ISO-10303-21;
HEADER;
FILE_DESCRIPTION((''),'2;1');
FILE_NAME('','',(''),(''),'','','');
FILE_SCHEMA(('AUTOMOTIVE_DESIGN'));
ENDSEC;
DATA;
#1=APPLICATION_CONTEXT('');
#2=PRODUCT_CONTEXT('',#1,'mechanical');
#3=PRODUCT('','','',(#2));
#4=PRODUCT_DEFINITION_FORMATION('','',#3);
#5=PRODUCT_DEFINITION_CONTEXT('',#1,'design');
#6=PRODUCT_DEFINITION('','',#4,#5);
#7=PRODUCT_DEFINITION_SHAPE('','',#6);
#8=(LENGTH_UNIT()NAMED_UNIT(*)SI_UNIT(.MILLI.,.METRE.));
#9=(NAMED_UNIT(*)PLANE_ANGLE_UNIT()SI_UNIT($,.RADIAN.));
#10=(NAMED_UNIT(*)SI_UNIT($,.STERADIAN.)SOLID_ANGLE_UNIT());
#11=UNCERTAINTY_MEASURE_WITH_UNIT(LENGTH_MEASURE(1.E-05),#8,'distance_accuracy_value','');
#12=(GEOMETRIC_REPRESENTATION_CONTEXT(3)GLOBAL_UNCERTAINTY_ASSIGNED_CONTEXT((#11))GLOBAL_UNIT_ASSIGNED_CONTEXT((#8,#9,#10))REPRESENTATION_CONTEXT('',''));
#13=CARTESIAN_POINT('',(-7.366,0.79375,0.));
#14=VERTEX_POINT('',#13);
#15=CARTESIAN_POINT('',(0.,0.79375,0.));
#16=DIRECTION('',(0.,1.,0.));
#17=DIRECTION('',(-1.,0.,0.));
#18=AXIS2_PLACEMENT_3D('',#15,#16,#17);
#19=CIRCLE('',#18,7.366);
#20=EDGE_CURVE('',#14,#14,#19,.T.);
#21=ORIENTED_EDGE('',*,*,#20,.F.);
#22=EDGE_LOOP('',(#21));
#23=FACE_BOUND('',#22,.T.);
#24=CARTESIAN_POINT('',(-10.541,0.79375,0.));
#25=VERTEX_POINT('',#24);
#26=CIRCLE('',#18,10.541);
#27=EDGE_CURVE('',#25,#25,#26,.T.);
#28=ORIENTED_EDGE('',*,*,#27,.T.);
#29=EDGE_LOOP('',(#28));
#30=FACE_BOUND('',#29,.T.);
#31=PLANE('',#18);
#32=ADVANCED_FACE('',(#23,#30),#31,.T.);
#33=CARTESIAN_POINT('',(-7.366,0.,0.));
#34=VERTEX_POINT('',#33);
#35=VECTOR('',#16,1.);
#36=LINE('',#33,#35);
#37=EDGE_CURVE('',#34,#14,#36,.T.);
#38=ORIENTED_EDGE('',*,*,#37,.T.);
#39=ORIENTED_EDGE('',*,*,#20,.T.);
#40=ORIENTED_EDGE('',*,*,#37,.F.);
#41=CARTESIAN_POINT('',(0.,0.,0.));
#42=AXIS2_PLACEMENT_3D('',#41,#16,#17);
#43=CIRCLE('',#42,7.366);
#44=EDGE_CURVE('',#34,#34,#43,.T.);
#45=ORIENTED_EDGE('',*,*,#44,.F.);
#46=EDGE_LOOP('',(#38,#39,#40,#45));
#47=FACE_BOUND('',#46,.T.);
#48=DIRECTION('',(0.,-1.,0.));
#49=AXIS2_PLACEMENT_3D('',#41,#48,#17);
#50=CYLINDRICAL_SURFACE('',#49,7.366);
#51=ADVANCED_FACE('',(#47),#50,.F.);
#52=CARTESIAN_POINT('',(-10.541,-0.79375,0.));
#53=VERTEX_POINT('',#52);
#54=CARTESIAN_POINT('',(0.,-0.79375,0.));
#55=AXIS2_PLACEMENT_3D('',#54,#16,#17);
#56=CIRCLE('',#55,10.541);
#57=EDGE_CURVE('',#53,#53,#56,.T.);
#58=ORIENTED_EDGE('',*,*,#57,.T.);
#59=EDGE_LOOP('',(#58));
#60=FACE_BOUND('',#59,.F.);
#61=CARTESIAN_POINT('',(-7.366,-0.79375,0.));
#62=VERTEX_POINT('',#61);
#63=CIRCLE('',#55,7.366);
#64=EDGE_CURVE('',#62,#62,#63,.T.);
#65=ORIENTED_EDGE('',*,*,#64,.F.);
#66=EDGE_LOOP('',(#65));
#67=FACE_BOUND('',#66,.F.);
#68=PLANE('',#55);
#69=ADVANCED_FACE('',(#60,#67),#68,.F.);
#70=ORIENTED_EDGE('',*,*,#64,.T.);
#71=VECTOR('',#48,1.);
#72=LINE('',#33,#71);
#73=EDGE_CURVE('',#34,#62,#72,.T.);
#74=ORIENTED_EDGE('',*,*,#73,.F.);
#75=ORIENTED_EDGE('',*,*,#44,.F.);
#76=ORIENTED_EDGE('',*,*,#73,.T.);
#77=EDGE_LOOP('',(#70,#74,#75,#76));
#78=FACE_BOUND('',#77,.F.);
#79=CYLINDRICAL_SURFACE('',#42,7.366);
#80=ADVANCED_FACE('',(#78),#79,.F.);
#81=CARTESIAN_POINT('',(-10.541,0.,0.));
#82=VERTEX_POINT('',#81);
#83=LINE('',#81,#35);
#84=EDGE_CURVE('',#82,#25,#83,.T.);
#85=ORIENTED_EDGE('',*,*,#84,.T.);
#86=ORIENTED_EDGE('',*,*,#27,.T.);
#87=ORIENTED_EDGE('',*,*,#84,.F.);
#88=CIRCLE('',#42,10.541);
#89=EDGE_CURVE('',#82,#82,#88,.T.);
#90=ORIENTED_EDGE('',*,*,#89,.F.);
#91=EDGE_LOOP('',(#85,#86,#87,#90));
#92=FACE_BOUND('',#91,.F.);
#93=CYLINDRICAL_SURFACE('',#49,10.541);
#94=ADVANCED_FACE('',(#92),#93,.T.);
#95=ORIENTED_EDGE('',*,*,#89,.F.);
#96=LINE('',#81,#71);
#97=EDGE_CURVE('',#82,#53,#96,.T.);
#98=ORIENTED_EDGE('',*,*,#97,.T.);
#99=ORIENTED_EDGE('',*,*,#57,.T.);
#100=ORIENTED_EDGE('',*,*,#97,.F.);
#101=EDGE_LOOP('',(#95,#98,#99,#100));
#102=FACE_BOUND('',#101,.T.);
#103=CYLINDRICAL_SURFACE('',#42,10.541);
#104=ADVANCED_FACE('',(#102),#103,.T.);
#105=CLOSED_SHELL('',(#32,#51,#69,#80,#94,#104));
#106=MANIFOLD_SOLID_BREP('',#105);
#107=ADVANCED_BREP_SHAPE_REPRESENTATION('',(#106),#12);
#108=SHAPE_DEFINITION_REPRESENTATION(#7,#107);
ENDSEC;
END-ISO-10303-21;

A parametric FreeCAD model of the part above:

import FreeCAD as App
import Part
import Sketcher

V = App.Vector
Q = App.Units.Quantity

doc = App.newDocument("Part")
body = doc.addObject("PartDesign::Body", "Body")

# Sketch on XZ plane
sketch1 = doc.addObject("Sketcher::SketchObject", "Sketch")
body.addObject(sketch1)
sketch1.AttachmentSupport = (doc.XZ_Plane, [""])
sketch1.MapMode = "FlatFace"
sketch1.addGeometry(Part.Circle(V(0, 0, 0), V(0, 0, 1), 10.541), False)
sketch1.addGeometry(Part.Circle(V(0, 0, 0), V(0, 0, 1), 7.366), False)
sketch1.addConstraint(Sketcher.Constraint("Coincident", 0, 3, -1, 1))
sketch1.addConstraint(Sketcher.Constraint("Coincident", 1, 3, -1, 1))
sketch1.addConstraint(Sketcher.Constraint("Diameter", 1, Q("0.58 in")))
sketch1.addConstraint(Sketcher.Constraint("Diameter", 0, Q("0.83 in")))
pad1 = doc.addObject("PartDesign::Pad", "Pad")
body.addObject(pad1)
pad1.Profile = sketch1
pad1.Length = Q("0.0625 in")
pad1.Midplane = True

doc.recompute()
